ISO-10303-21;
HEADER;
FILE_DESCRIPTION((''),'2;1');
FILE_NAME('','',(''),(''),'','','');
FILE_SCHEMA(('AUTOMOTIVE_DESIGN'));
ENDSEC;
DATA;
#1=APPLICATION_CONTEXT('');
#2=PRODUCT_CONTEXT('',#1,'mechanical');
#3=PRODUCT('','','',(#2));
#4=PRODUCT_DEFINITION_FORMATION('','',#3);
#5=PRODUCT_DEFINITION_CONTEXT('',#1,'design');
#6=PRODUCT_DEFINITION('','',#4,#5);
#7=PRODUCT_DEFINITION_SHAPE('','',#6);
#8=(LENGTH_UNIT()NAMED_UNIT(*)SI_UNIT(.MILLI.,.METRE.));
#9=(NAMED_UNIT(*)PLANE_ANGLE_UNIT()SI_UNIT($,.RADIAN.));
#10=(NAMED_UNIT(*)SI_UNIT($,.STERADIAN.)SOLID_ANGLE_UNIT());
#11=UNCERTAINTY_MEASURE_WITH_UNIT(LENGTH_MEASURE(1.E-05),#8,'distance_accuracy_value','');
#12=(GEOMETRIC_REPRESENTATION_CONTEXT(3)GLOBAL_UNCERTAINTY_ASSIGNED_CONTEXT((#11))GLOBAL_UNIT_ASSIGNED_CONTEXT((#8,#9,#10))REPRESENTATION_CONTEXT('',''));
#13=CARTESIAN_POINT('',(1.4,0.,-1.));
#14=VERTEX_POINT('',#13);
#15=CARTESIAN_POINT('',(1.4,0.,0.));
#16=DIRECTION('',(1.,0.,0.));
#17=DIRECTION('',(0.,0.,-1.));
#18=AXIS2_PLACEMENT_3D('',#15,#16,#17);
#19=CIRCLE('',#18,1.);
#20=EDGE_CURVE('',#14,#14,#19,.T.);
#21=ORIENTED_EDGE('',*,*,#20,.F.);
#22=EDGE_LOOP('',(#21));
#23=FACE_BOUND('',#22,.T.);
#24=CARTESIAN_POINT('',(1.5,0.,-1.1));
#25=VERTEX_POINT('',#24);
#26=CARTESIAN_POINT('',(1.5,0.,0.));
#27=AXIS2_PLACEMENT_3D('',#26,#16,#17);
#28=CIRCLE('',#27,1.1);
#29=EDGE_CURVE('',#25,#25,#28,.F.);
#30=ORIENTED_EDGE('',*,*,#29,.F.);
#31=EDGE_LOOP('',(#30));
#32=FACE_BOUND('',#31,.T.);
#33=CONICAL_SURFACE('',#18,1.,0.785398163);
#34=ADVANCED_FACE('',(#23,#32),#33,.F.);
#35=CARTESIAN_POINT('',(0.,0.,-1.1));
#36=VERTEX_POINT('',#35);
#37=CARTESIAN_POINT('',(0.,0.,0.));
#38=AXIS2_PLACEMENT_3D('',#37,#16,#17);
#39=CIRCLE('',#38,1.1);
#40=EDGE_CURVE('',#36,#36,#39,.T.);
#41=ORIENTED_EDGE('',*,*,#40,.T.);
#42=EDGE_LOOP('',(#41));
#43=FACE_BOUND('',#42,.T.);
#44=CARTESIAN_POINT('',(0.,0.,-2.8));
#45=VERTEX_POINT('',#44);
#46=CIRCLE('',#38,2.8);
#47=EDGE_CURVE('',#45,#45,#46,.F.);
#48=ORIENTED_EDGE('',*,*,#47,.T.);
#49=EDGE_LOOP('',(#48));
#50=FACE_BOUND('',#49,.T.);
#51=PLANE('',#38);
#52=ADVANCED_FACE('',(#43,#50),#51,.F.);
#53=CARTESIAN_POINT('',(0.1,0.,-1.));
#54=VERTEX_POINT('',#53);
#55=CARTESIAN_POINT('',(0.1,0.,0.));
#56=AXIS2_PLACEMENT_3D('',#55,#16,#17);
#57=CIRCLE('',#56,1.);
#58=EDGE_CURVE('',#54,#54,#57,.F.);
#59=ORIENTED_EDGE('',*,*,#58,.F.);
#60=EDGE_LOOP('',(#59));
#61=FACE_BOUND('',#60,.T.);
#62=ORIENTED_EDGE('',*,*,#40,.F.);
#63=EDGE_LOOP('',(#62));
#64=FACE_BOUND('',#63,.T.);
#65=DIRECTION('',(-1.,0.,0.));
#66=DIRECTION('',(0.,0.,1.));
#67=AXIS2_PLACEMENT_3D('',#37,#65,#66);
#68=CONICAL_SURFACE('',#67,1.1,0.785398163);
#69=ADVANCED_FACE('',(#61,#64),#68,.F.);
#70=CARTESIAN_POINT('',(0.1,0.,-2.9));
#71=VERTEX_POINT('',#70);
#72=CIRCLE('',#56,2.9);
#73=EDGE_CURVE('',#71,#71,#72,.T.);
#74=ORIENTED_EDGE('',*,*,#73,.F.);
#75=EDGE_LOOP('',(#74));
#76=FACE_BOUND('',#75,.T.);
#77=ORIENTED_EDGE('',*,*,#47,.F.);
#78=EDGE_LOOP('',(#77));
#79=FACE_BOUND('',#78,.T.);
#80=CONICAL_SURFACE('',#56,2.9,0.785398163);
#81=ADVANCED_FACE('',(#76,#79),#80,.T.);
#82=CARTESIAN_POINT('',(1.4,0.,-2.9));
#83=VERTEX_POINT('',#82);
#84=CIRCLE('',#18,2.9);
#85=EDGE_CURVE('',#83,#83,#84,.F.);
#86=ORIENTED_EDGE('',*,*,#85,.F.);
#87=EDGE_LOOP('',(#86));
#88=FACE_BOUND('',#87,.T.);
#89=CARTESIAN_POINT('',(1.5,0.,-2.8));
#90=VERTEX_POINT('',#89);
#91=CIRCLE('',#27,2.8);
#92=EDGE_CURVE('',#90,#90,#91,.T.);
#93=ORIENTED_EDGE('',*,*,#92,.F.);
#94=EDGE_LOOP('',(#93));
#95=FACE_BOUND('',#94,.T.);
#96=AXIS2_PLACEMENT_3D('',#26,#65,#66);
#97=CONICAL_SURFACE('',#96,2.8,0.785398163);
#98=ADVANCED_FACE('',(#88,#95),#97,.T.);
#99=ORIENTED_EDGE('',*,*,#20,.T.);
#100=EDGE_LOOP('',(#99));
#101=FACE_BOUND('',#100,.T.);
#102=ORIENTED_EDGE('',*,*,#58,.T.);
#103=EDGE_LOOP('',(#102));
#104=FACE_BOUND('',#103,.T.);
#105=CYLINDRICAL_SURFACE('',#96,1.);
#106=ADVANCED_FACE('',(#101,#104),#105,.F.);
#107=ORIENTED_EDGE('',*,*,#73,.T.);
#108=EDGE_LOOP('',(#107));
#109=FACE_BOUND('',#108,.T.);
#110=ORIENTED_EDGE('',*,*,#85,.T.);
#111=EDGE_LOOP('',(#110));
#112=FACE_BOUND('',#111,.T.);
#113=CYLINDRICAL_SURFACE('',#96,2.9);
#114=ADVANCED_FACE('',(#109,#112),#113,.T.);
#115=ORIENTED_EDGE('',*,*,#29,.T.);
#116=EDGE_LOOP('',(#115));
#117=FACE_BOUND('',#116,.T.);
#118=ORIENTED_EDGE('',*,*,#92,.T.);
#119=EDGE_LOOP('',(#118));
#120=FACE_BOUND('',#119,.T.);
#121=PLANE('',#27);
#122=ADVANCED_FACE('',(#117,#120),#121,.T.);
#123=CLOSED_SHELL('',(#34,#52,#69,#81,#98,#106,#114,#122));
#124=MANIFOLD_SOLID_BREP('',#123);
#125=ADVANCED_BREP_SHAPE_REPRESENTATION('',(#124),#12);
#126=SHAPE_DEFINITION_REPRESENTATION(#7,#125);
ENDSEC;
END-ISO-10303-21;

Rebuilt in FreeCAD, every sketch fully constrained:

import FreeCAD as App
import Part
import Sketcher

V = App.Vector
Q = App.Units.Quantity


def edges_at(feature, points):
    """Names of the edges that pass closest to the given points."""
    edges = feature.Shape.Edges
    near = lambda p: min(range(len(edges)), key=lambda i: edges[i].distToShape(Part.Vertex(*p))[0])
    return sorted({f"Edge{near(p) + 1}" for p in points})

doc = App.newDocument("Part")
body = doc.addObject("PartDesign::Body", "Body")

# Sketch on YZ plane
sketch1 = body.newObject("Sketcher::SketchObject", "Sketch")
sketch1.AttachmentSupport = (doc.getObject("YZ_Plane"), [""])
sketch1.MapMode = "FlatFace"
sketch1.addGeometry([
    Part.Circle(V(0, 0, 0), V(0, 0, 1), 2.9),
    Part.Circle(V(0, 0, 0), V(0, 0, 1), 1),
], False)
sketch1.addConstraint([
    Sketcher.Constraint("Coincident", 0, 3, -1, 1),
    Sketcher.Constraint("Coincident", 1, 3, -1, 1),
    Sketcher.Constraint("Diameter", 1, Q("2 mm")),
    Sketcher.Constraint("Diameter", 0, Q("5.8 mm")),
])
pad1 = body.newObject("PartDesign::Pad", "Pad")
pad1.Profile = sketch1
pad1.Length = 1.5
doc.recompute()

chamfer = body.newObject("PartDesign::Chamfer", "Chamfer")
chamfer.Base = (pad1, edges_at(pad1, [
    (0, 0, 2.9),
    (1.5, 0, 2.9),
    (0, 0, 1),
    (1.5, 0, 1),
]))
chamfer.Size = 0.1

doc.recompute()
